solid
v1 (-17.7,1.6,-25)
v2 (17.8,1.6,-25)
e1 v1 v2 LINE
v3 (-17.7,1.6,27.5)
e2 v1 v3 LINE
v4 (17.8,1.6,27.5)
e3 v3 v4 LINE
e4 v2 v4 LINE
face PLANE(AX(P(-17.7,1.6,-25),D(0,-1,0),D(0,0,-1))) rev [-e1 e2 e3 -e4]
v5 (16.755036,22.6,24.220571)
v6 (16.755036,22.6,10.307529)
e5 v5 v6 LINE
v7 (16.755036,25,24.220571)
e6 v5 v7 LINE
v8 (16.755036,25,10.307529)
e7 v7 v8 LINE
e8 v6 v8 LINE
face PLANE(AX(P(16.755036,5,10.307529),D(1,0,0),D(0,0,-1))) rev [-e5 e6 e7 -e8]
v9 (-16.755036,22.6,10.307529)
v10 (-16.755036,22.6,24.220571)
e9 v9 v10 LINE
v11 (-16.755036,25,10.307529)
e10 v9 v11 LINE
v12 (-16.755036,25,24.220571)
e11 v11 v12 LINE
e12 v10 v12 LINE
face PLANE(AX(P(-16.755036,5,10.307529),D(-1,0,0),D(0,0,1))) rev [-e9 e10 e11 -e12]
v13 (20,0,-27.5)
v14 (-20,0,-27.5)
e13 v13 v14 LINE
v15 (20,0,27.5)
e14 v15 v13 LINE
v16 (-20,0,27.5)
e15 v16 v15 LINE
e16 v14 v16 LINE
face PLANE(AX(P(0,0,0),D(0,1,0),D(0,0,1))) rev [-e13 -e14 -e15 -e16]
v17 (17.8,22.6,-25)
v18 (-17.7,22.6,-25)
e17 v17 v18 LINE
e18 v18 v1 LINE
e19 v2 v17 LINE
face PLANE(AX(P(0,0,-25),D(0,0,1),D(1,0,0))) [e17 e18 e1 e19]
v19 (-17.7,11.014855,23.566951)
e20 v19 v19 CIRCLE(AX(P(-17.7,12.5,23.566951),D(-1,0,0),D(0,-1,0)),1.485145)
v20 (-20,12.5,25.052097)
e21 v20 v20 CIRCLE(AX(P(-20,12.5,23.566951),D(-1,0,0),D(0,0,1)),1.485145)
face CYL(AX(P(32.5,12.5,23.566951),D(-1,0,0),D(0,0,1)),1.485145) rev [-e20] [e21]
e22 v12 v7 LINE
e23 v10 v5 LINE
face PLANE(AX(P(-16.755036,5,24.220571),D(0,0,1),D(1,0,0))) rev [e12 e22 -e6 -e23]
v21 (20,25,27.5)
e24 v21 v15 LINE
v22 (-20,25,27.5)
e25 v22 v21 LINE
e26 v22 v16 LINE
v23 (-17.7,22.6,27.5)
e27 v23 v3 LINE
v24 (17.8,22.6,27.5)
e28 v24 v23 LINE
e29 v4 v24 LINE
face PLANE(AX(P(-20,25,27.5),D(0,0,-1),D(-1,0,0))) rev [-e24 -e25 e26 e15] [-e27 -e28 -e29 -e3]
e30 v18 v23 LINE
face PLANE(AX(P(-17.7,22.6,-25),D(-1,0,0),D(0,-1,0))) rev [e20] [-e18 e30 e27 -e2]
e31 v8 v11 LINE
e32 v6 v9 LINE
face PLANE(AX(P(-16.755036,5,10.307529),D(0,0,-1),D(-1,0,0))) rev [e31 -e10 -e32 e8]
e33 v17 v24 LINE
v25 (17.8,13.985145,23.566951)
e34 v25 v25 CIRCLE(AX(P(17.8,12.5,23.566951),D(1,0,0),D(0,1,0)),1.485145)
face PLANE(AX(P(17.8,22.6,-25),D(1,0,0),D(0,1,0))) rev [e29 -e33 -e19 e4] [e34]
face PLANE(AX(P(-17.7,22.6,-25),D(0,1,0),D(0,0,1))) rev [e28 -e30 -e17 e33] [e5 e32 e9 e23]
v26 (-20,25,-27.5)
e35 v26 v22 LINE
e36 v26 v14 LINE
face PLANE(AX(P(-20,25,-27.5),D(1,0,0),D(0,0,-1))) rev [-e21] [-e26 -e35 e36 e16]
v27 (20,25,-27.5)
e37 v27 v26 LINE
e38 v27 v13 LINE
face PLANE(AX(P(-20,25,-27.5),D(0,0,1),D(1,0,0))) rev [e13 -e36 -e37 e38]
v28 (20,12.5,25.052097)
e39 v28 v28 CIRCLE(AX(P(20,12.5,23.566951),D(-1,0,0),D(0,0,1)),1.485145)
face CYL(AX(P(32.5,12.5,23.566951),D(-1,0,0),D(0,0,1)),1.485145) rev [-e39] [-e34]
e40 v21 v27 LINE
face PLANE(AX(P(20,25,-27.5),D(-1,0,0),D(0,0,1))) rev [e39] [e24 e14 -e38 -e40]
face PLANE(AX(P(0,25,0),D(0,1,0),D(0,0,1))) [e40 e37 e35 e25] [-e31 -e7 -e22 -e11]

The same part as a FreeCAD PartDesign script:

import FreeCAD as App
import Part
import Sketcher

V = App.Vector
Q = App.Units.Quantity

doc = App.newDocument("Part")
body = doc.addObject("PartDesign::Body", "Body")

sketch1 = body.newObject("Sketcher::SketchObject", "Sketch")
sketch1.AttachmentSupport = (doc.getObject("XZ_Plane"), [""])
sketch1.MapMode = "FlatFace"
sketch1.addGeometry([
    Part.LineSegment(V(-20, -27.5, 0), V(-20, 27.5, 0)),
    Part.LineSegment(V(-20, 27.5, 0), V(20, 27.5, 0)),
    Part.LineSegment(V(20, 27.5, 0), V(20, -27.5, 0)),
    Part.LineSegment(V(20, -27.5, 0), V(-20, -27.5, 0)),
], False)
sketch1.addConstraint([
    Sketcher.Constraint("Coincident", 0, 2, 1, 1),
    Sketcher.Constraint("Coincident", 1, 2, 2, 1),
    Sketcher.Constraint("Coincident", 2, 2, 3, 1),
    Sketcher.Constraint("Coincident", 3, 2, 0, 1),
    Sketcher.Constraint("Vertical", 0),
    Sketcher.Constraint("Horizontal", 1),
    Sketcher.Constraint("Vertical", 2),
    Sketcher.Constraint("Horizontal", 3),
    Sketcher.Constraint("Symmetric", 0, 2, 2, 2, -1, 1),
    Sketcher.Constraint("DistanceX", 1, 1, 1, 2, Q("40 mm")),
    Sketcher.Constraint("DistanceY", 0, 1, 0, 2, Q("55 mm")),
])
pad1 = body.newObject("PartDesign::Pad", "Pad")
pad1.Profile = sketch1
pad1.Length = 25
pad1.Reversed = True

sketch2 = body.newObject("Sketcher::SketchObject", "Sketch001")
sketch2.AttachmentSupport = (doc.getObject("XY_Plane"), [""])
sketch2.MapMode = "FlatFace"
sketch2.AttachmentOffset = App.Placement(V(0, 0, 27.5), App.Rotation())
sketch2.addGeometry([
    Part.LineSegment(V(-17.7, 22.6, 0), V(-17.7, 1.6, 0)),
    Part.LineSegment(V(-17.7, 1.6, 0), V(17.8, 1.6, 0)),
    Part.LineSegment(V(17.8, 1.6, 0), V(17.8, 22.6, 0)),
    Part.LineSegment(V(17.8, 22.6, 0), V(-17.7, 22.6, 0)),
], False)
sketch2.addConstraint([
    Sketcher.Constraint("Coincident", 0, 2, 1, 1),
    Sketcher.Constraint("Coincident", 1, 2, 2, 1),
    Sketcher.Constraint("Coincident", 2, 2, 3, 1),
    Sketcher.Constraint("Coincident", 3, 2, 0, 1),
    Sketcher.Constraint("Vertical", 0),
    Sketcher.Constraint("Horizontal", 1),
    Sketcher.Constraint("Vertical", 2),
    Sketcher.Constraint("Horizontal", 3),
    Sketcher.Constraint("DistanceY", 0, 2, 0, 1, Q("21 mm")),
    Sketcher.Constraint("DistanceX", 1, 1, 1, 2, Q("35.5 mm")),
    Sketcher.Constraint("DistanceX", 0, 2, -1, 1, Q("17.7 mm")),
    Sketcher.Constraint("DistanceY", -1, 1, 0, 2, Q("1.6 mm")),
])
pocket1 = body.newObject("PartDesign::Pocket", "Pocket")
pocket1.Profile = sketch2
pocket1.Length = 52.5

sketch3 = body.newObject("Sketcher::SketchObject", "Sketch002")
sketch3.AttachmentSupport = (doc.getObject("YZ_Plane"), [""])
sketch3.MapMode = "FlatFace"
sketch3.AttachmentOffset = App.Placement(V(0, 0, -20), App.Rotation())
sketch3.addGeometry(Part.Circle(V(12.5, 23.566951, 0), V(0, 0, 1), 1.485145), False)
sketch3.addConstraint([
    Sketcher.Constraint("DistanceX", -1, 1, 0, 3, Q("12.5 mm")),
    Sketcher.Constraint("Diameter", 0, Q("2.970291 mm")),
    Sketcher.Constraint("DistanceY", -1, 1, 0, 3, Q("23.566951 mm")),
])
pocket2 = body.newObject("PartDesign::Pocket", "Pocket001")
pocket2.Profile = sketch3
pocket2.Length = 52.5
pocket2.Reversed = True

sketch4 = body.newObject("Sketcher::SketchObject", "Sketch003")
sketch4.AttachmentSupport = (doc.getObject("XZ_Plane"), [""])
sketch4.MapMode = "FlatFace"
sketch4.AttachmentOffset = App.Placement(V(0, 0, -25), App.Rotation())
sketch4.addGeometry([
    Part.LineSegment(V(-16.755036, 10.307529, 0), V(-16.755036, 24.220571, 0)),
    Part.LineSegment(V(-16.755036, 24.220571, 0), V(16.755036, 24.220571, 0)),
    Part.LineSegment(V(16.755036, 24.220571, 0), V(16.755036, 10.307529, 0)),
    Part.LineSegment(V(16.755036, 10.307529, 0), V(-16.755036, 10.307529, 0)),
], False)
sketch4.addConstraint([
    Sketcher.Constraint("Coincident", 0, 2, 1, 1),
    Sketcher.Constraint("Coincident", 1, 2, 2, 1),
    Sketcher.Constraint("Coincident", 2, 2, 3, 1),
    Sketcher.Constraint("Coincident", 3, 2, 0, 1),
    Sketcher.Constraint("Vertical", 0),
    Sketcher.Constraint("Horizontal", 1),
    Sketcher.Constraint("Vertical", 2),
    Sketcher.Constraint("Horizontal", 3),
    Sketcher.Constraint("DistanceX", 1, 1, 1, 2, Q("33.510072 mm")),
    Sketcher.Constraint("DistanceY", 0, 1, 0, 2, Q("13.913043 mm")),
    Sketcher.Constraint("DistanceY", -1, 1, 0, 2, Q("24.220571 mm")),
    Sketcher.Constraint("DistanceX", 0, 2, -1, 1, Q("16.755036 mm")),
])
pocket3 = body.newObject("PartDesign::Pocket", "Pocket002")
pocket3.Profile = sketch4
pocket3.Length = 20
pocket3.Reversed = True

doc.recompute()
